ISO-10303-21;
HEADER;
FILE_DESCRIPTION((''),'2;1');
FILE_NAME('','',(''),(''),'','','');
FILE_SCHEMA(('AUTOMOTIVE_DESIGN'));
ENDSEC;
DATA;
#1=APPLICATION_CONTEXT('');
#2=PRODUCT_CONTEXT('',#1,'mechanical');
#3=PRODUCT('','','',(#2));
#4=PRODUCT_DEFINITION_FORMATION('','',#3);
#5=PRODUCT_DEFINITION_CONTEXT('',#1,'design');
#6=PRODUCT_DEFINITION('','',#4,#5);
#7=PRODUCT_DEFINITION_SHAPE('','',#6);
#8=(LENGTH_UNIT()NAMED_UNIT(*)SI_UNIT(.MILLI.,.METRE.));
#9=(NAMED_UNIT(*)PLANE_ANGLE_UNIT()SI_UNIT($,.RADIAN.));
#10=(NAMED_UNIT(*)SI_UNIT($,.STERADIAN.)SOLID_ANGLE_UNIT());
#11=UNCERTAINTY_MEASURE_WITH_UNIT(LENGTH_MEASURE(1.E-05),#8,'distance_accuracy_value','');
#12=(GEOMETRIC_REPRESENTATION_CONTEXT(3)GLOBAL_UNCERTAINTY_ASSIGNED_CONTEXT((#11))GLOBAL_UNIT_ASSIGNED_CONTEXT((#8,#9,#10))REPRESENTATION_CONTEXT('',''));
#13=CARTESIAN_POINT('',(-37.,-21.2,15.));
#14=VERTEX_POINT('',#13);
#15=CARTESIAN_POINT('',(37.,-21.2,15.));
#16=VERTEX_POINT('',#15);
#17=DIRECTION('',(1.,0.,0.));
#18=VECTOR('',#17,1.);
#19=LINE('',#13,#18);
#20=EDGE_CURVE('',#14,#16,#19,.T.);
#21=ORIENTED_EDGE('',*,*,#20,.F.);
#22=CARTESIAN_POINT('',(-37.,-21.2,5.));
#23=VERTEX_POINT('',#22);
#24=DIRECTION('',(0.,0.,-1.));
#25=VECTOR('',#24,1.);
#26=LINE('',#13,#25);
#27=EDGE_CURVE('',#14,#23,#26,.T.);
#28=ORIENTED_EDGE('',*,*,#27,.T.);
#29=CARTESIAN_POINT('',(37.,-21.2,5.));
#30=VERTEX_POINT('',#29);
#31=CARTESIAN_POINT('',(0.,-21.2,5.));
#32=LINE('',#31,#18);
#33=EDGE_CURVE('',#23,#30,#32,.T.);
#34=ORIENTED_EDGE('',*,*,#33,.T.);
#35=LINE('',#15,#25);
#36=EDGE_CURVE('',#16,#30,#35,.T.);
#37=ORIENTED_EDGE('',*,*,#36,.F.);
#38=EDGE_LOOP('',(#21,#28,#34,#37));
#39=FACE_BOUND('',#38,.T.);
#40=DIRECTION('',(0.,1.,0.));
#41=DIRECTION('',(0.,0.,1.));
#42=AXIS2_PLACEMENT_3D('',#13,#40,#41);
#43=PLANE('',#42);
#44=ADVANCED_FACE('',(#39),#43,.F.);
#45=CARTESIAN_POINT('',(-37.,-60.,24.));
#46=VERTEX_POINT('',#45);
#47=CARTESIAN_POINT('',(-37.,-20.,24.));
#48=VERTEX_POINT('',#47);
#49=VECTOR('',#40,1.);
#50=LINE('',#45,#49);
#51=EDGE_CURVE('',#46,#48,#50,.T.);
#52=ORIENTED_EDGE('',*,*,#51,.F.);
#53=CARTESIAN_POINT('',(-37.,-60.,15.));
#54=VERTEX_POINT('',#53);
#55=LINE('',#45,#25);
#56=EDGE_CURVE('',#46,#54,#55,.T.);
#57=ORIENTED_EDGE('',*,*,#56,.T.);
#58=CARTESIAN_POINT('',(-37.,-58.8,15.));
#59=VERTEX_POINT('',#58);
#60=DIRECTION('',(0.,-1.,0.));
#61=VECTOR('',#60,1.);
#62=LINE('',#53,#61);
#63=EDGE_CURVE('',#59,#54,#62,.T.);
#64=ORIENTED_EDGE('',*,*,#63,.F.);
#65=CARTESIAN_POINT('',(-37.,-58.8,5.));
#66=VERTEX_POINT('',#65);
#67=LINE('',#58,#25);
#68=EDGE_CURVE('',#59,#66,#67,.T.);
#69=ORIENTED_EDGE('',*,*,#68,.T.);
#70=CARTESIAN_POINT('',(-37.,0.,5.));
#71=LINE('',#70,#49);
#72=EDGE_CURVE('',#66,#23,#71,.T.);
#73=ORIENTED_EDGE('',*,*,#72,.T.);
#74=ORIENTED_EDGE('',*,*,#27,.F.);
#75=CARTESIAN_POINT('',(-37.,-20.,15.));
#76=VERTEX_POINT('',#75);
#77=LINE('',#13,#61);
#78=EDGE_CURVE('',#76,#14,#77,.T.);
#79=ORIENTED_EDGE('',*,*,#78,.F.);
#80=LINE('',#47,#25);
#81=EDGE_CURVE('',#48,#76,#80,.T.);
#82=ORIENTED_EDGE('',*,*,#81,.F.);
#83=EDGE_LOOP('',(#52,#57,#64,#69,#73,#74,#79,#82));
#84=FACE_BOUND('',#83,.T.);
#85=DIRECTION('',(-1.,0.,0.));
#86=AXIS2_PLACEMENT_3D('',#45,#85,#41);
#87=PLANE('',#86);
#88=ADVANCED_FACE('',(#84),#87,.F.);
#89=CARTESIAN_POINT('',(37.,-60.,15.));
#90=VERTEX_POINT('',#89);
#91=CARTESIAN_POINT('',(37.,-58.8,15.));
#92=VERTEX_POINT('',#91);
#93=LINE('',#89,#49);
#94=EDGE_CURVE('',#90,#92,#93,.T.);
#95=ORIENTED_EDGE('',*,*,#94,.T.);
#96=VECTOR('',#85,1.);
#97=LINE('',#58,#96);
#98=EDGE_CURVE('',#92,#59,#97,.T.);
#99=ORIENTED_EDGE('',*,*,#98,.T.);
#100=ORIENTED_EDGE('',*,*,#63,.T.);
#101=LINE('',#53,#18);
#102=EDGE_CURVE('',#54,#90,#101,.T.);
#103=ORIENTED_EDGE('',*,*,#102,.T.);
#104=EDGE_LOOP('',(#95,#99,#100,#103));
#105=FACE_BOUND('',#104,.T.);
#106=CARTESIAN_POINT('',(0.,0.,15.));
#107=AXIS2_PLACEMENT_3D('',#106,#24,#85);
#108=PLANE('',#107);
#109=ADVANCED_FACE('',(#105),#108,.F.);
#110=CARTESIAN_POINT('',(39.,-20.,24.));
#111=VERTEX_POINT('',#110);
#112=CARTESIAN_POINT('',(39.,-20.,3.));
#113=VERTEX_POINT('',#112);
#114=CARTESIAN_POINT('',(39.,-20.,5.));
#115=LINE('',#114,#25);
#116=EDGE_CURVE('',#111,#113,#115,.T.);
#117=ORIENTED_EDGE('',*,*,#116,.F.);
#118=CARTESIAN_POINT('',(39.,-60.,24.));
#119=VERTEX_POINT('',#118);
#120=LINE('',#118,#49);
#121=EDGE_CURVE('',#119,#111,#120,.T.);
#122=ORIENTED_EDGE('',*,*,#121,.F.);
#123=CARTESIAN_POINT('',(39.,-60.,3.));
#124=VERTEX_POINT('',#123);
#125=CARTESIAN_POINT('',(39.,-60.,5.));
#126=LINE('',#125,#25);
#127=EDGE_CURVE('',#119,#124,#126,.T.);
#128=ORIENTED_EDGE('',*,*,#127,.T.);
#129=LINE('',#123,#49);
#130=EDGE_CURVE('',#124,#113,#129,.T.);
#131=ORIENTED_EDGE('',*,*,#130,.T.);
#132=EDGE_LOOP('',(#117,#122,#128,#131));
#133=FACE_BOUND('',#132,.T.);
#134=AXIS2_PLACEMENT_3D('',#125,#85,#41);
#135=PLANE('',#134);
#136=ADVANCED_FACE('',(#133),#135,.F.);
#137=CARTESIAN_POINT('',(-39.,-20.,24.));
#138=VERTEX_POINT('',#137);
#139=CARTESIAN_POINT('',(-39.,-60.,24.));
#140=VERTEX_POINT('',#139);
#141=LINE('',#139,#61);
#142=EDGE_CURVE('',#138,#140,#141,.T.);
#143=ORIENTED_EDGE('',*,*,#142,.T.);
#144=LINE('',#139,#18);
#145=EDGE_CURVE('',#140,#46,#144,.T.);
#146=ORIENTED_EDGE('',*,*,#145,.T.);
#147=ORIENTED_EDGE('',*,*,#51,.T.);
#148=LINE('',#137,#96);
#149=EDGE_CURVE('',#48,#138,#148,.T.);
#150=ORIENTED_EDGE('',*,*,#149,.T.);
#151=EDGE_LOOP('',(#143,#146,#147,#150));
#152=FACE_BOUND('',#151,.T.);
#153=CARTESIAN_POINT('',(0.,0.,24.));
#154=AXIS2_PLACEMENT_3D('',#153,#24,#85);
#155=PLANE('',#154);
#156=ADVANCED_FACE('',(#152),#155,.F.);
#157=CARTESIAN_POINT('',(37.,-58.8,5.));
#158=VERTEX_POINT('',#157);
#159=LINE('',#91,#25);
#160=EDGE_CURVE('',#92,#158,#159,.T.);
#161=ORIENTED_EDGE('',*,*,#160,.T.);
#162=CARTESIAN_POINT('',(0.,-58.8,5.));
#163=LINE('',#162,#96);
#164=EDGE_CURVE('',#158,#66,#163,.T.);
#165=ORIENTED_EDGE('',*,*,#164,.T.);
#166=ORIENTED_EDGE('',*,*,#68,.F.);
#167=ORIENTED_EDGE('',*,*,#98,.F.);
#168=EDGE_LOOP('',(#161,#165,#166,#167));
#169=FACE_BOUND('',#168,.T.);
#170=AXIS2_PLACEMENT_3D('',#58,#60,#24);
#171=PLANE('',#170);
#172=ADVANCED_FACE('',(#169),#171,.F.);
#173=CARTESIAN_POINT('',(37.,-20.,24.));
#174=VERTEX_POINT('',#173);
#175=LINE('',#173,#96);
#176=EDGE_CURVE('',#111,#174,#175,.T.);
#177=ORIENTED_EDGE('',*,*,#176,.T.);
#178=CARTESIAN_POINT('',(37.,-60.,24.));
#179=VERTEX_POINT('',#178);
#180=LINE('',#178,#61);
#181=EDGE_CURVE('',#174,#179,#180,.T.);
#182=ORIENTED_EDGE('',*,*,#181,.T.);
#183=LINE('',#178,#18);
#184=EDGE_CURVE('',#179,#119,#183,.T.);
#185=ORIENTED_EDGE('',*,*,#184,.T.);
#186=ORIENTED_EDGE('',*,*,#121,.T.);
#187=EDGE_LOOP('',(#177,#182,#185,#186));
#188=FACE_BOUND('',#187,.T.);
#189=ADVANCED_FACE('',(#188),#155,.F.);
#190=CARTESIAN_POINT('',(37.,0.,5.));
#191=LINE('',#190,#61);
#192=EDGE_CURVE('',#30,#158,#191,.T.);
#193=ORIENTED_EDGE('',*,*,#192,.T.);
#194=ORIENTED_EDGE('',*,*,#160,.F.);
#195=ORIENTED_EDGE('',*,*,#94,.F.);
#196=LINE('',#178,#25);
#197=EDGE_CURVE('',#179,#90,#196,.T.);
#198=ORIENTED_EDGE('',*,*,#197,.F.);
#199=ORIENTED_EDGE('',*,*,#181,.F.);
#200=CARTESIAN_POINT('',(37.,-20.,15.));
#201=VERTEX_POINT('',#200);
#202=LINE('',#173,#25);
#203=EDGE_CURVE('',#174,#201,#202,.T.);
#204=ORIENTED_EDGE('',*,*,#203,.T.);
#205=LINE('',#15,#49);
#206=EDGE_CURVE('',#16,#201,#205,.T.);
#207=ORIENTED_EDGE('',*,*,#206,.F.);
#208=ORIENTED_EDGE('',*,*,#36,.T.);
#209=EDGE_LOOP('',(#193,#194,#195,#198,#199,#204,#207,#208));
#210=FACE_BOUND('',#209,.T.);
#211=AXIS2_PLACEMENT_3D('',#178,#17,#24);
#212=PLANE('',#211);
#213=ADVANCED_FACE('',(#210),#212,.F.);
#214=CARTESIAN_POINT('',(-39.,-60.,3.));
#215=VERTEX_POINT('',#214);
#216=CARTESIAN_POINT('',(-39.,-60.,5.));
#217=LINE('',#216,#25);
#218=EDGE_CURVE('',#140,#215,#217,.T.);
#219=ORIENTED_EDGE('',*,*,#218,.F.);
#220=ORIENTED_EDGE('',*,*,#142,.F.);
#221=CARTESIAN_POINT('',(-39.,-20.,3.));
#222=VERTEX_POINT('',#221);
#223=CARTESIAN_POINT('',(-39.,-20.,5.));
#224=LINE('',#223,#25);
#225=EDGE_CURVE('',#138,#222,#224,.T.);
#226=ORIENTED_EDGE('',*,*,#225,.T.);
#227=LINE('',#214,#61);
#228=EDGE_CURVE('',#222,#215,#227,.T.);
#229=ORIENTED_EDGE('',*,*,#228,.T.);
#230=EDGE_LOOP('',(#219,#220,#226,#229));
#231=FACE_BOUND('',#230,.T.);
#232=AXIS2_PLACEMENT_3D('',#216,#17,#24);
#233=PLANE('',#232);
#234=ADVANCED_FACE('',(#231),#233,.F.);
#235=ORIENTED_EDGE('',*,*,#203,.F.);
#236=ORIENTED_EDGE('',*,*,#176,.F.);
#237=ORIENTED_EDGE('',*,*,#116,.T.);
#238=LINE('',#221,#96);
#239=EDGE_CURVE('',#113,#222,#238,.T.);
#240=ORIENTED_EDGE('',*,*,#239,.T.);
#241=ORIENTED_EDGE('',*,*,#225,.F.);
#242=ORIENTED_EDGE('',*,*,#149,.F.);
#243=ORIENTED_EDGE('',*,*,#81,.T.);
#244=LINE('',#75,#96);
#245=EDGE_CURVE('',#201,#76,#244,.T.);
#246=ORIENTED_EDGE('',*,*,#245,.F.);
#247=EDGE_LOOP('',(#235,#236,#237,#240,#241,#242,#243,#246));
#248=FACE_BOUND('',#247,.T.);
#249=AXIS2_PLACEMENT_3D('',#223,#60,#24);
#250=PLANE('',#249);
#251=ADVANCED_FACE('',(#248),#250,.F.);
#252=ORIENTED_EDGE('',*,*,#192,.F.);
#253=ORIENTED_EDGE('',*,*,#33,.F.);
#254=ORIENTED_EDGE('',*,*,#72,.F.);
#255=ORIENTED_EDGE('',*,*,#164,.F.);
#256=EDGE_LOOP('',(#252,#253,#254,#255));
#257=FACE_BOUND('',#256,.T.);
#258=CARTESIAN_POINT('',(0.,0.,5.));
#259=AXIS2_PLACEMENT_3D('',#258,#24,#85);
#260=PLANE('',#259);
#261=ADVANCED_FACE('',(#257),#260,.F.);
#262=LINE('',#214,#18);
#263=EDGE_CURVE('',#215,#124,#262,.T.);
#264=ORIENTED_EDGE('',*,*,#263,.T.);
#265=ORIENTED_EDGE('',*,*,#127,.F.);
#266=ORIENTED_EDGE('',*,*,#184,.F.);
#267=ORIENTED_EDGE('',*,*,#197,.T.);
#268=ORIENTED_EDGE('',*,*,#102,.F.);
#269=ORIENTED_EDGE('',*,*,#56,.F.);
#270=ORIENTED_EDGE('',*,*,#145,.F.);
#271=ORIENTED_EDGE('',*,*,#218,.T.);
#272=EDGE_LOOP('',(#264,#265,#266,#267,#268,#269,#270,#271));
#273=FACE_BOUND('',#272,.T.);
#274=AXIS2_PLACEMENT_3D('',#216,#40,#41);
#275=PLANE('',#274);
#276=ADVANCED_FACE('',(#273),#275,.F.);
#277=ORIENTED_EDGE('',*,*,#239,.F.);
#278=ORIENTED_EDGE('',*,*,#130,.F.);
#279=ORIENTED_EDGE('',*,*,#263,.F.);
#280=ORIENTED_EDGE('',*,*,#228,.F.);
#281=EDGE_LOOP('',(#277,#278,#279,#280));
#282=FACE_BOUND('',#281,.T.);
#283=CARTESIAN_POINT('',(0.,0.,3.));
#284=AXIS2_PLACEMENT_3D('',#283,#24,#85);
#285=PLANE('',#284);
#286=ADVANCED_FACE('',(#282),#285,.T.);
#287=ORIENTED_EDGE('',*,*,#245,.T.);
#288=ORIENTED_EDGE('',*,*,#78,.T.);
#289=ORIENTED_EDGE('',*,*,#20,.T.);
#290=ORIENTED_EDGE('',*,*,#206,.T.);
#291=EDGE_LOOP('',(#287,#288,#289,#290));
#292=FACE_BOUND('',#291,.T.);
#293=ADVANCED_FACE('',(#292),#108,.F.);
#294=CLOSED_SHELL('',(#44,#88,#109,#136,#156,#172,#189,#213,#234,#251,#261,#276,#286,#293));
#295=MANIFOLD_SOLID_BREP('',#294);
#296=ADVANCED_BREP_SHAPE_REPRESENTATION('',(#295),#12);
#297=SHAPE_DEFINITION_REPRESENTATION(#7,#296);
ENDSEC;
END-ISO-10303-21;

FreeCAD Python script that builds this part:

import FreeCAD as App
import Part
import Sketcher
from FreeCAD import Vector
Q = App.Units.Quantity


def add_polygon(sketch, points):
    """Adds a closed chain of lines whose ends are joined by coincident constraints."""
    first, n = sketch.GeometryCount, len(points)
    for a, b in zip(points, points[1:] + points[:1]):
        sketch.addGeometry(Part.LineSegment(App.Vector(*a, 0), App.Vector(*b, 0)), False)
    for i in range(n):
        sketch.addConstraint(Sketcher.Constraint("Coincident", first + i, 2, first + (i + 1) % n, 1))

doc = App.newDocument("Part")
body = doc.addObject("PartDesign::Body", "Body")

# Sketch on XY plane
sketch1 = body.newObject("Sketcher::SketchObject", "Sketch")
sketch1.AttachmentSupport = (doc.getObject("XY_Plane"), [""])
sketch1.MapMode = "FlatFace"
sketch1.AttachmentOffset = App.Placement(Vector(0, 0, 3), App.Rotation())
add_polygon(sketch1, [(-39, -20), (-39, -60), (39, -60), (39, -20)])  # lines 0-3
sketch1.addConstraint([
    Sketcher.Constraint("Vertical", 0),
    Sketcher.Constraint("Horizontal", 1),
    Sketcher.Constraint("Vertical", 2),
    Sketcher.Constraint("Horizontal", 3),
    Sketcher.Constraint("DistanceX", 1, 1, 1, 2, Q("78 mm")),
    Sketcher.Constraint("DistanceY", 0, 2, 0, 1, Q("40 mm")),
    Sketcher.Constraint("DistanceX", 0, 2, -1, 1, Q("39 mm")),
    Sketcher.Constraint("DistanceY", 0, 2, -1, 1, Q("60 mm")),
])
pad1 = body.newObject("PartDesign::Pad", "Pad")
pad1.Profile = sketch1
pad1.Length = 2

# Sketch on XY plane
sketch2 = body.newObject("Sketcher::SketchObject", "Sketch001")
sketch2.AttachmentSupport = (doc.getObject("XY_Plane"), [""])
sketch2.MapMode = "FlatFace"
sketch2.AttachmentOffset = App.Placement(Vector(0, 0, 3), App.Rotation())
add_polygon(sketch2, [(-39, -20), (-39, -60), (-37, -60), (-37, -20)])  # lines 0-3
sketch2.addConstraint([
    Sketcher.Constraint("Vertical", 0),
    Sketcher.Constraint("Horizontal", 1),
    Sketcher.Constraint("Vertical", 2),
    Sketcher.Constraint("Horizontal", 3),
    Sketcher.Constraint("DistanceX", 1, 1, 1, 2, Q("2 mm")),
    Sketcher.Constraint("DistanceY", 0, 2, 0, 1, Q("40 mm")),
    Sketcher.Constraint("DistanceX", 0, 2, -1, 1, Q("39 mm")),
    Sketcher.Constraint("DistanceY", 0, 2, -1, 1, Q("60 mm")),
])
pad2 = body.newObject("PartDesign::Pad", "Pad001")
pad2.Profile = sketch2
pad2.Length = 21

# Sketch on XY plane
sketch3 = body.newObject("Sketcher::SketchObject", "Sketch002")
sketch3.AttachmentSupport = (doc.getObject("XY_Plane"), [""])
sketch3.MapMode = "FlatFace"
sketch3.AttachmentOffset = App.Placement(Vector(0, 0, 3), App.Rotation())
add_polygon(sketch3, [(37, -20), (37, -60), (39, -60), (39, -20)])  # lines 0-3
sketch3.addConstraint([
    Sketcher.Constraint("Vertical", 0),
    Sketcher.Constraint("Horizontal", 1),
    Sketcher.Constraint("Vertical", 2),
    Sketcher.Constraint("Horizontal", 3),
    Sketcher.Constraint("DistanceX", 1, 1, 1, 2, Q("2 mm")),
    Sketcher.Constraint("DistanceY", 0, 2, 0, 1, Q("40 mm")),
    Sketcher.Constraint("DistanceX", -1, 1, 0, 2, Q("37 mm")),
    Sketcher.Constraint("DistanceY", 0, 2, -1, 1, Q("60 mm")),
])
pad3 = body.newObject("PartDesign::Pad", "Pad002")
pad3.Profile = sketch3
pad3.Length = 21

# Sketch on XY plane
sketch4 = body.newObject("Sketcher::SketchObject", "Sketch003")
sketch4.AttachmentSupport = (doc.getObject("XY_Plane"), [""])
sketch4.MapMode = "FlatFace"
sketch4.AttachmentOffset = App.Placement(Vector(0, 0, 3), App.Rotation())
add_polygon(sketch4, [(-37, -58.8), (-37, -60), (37, -60), (37, -58.8)])  # lines 0-3
sketch4.addConstraint([
    Sketcher.Constraint("Vertical", 0),
    Sketcher.Constraint("Horizontal", 1),
    Sketcher.Constraint("Vertical", 2),
    Sketcher.Constraint("Horizontal", 3),
    Sketcher.Constraint("DistanceX", 1, 1, 1, 2, Q("74 mm")),
    Sketcher.Constraint("DistanceY", 0, 2, 0, 1, Q("1.2 mm")),
    Sketcher.Constraint("DistanceX", 0, 2, -1, 1, Q("37 mm")),
    Sketcher.Constraint("DistanceY", 0, 2, -1, 1, Q("60 mm")),
])
pad4 = body.newObject("PartDesign::Pad", "Pad003")
pad4.Profile = sketch4
pad4.Length = 12

# Sketch on XY plane
sketch5 = body.newObject("Sketcher::SketchObject", "Sketch004")
sketch5.AttachmentSupport = (doc.getObject("XY_Plane"), [""])
sketch5.MapMode = "FlatFace"
sketch5.AttachmentOffset = App.Placement(Vector(0, 0, 3), App.Rotation())
add_polygon(sketch5, [(-37, -20), (-37, -21.2), (37, -21.2), (37, -20)])  # lines 0-3
sketch5.addConstraint([
    Sketcher.Constraint("Vertical", 0),
    Sketcher.Constraint("Horizontal", 1),
    Sketcher.Constraint("Vertical", 2),
    Sketcher.Constraint("Horizontal", 3),
    Sketcher.Constraint("DistanceX", 1, 1, 1, 2, Q("74 mm")),
    Sketcher.Constraint("DistanceY", 0, 2, 0, 1, Q("1.2 mm")),
    Sketcher.Constraint("DistanceX", 0, 2, -1, 1, Q("37 mm")),
    Sketcher.Constraint("DistanceY", 2, 2, -1, 1, Q("20 mm")),
])
pad5 = body.newObject("PartDesign::Pad", "Pad004")
pad5.Profile = sketch5
pad5.Length = 12

doc.recompute()
